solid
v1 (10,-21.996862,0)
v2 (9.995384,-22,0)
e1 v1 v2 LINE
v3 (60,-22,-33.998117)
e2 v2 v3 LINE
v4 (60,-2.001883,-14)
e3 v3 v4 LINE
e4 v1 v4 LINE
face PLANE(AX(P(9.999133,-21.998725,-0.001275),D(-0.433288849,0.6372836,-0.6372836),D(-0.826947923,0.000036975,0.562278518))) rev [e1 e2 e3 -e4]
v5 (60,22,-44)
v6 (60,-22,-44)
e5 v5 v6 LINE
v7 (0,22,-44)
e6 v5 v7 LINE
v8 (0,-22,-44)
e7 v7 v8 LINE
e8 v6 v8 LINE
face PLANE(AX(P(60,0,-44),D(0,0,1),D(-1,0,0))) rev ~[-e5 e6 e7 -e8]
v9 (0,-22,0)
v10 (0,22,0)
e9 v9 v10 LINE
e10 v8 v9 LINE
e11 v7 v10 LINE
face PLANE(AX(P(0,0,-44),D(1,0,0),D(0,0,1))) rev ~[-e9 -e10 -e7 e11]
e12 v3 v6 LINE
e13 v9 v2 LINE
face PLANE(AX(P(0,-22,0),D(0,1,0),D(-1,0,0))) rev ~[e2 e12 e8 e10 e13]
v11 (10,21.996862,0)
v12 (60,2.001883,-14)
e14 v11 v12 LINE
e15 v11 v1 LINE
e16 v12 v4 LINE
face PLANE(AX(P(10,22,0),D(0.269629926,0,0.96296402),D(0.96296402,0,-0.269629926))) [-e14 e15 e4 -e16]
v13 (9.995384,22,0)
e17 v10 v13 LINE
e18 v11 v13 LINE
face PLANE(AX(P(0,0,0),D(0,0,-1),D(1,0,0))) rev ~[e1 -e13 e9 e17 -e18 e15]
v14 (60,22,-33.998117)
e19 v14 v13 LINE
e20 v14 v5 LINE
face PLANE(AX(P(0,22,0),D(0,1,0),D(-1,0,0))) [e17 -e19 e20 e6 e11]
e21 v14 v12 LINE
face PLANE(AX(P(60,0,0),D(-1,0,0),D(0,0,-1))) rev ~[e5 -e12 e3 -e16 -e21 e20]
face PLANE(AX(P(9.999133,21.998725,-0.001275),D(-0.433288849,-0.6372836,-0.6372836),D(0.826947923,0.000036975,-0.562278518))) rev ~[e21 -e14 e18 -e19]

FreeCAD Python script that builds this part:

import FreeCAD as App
import Part
import Sketcher


def add_polygon(sketch, points):
    """Adds a closed chain of lines whose ends are joined by coincident constraints."""
    first, n = sketch.GeometryCount, len(points)
    for a, b in zip(points, points[1:] + points[:1]):
        sketch.addGeometry(Part.LineSegment(App.Vector(*a, 0), App.Vector(*b, 0)), False)
    for i in range(n):
        sketch.addConstraint(Sketcher.Constraint("Coincident", first + i, 2, first + (i + 1) % n, 1))

doc = App.newDocument("Part")
params = doc.addObject("Spreadsheet::Sheet", "Params")
for row, (alias, value) in enumerate([
    ("sketch1_width", "60 mm"),
    ("sketch1_height", "44 mm"),
    ("pad1_length", "44 mm"),
    ("sketch2_width", "50 mm"),
    ("sketch2_height", "14 mm"),
    ("pocket1_length", "60 mm"),
    ("pocket2_length", "40 mm"),
], start=1):
    params.set(f"A{row}", alias)
    params.set(f"B{row}", "=" + value)
    params.setAlias(f"B{row}", alias)

body = doc.addObject("PartDesign::Body", "Body")

# Sketch on XZ plane
sketch1 = body.newObject("Sketcher::SketchObject", "Sketch")
sketch1.AttachmentSupport = (doc.getObject("XZ_Plane"), [""])
sketch1.MapMode = "FlatFace"
add_polygon(sketch1, [(0, -44), (0, 0), (60, 0), (60, -44)])  # lines 0-3
sketch1.addConstraint([
    Sketcher.Constraint("Vertical", 0),
    Sketcher.Constraint("Horizontal", 1),
    Sketcher.Constraint("Vertical", 2),
    Sketcher.Constraint("Horizontal", 3),
    Sketcher.Constraint("Coincident", 0, 2, -1, 1),
    Sketcher.Constraint("DistanceX", 1, 1, 1, 2, 60.0),
    Sketcher.Constraint("DistanceY", 0, 1, 0, 2, 44.0),
])
sketch1.setExpression("Constraints[9]", "Params.sketch1_width")
sketch1.setExpression("Constraints[10]", "Params.sketch1_height")
pad1 = body.newObject("PartDesign::Pad", "Pad")
pad1.Profile = sketch1
pad1.setExpression("Length", "Params.pad1_length")
pad1.Midplane = True

# Sketch on XZ plane
sketch2 = body.newObject("Sketcher::SketchObject", "Sketch001")
sketch2.AttachmentSupport = (doc.getObject("XZ_Plane"), [""])
sketch2.MapMode = "FlatFace"
sketch2.AttachmentOffset = App.Placement(App.Vector(0, 0, -22), App.Rotation())
add_polygon(sketch2, [(60, -14), (10, 0), (60, 0)])  # lines 0-2
sketch2.addConstraint([
    Sketcher.Constraint("Horizontal", 1),
    Sketcher.Constraint("Vertical", 2),
    Sketcher.Constraint("PointOnObject", 0, 2, -1),
    Sketcher.Constraint("DistanceX", -1, 1, 0, 2, 10.0),
    Sketcher.Constraint("DistanceX", 1, 1, 1, 2, 50.0),
    Sketcher.Constraint("DistanceY", 2, 2, 2, 1, 14.0),
])
sketch2.setExpression("Constraints[7]", "Params.sketch2_width")
sketch2.setExpression("Constraints[8]", "Params.sketch2_height")
pocket1 = body.newObject("PartDesign::Pocket", "Pocket")
pocket1.Profile = sketch2
pocket1.setExpression("Length", "Params.pocket1_length")
pocket1.Reversed = True

# Sketch on an angled plane
sketch3 = body.newObject("Sketcher::SketchObject", "Sketch002")
sketch3.Placement = App.Placement(App.Vector(10, 22, 0), App.Rotation(App.Vector(0.826947923, 0.000036975, -0.562278518), App.Vector(0.358354442, -0.770629361, 0.526984329), App.Vector(-0.433288849, -0.6372836, -0.6372836), "ZXY"))
add_polygon(sketch3, [(-15, 29), (-15, -12), (94, -12), (94, 29)])  # lines 0-3
sketch3.addConstraint([
    Sketcher.Constraint("Vertical", 0),
    Sketcher.Constraint("Horizontal", 1),
    Sketcher.Constraint("Vertical", 2),
    Sketcher.Constraint("Horizontal", 3),
    Sketcher.Constraint("DistanceX", 1, 1, 1, 2, 108.8713),
    Sketcher.Constraint("DistanceY", 0, 2, 0, 1, 41.1384),
    Sketcher.Constraint("DistanceX", -1, 1, 1, 2, 93.717),
    Sketcher.Constraint("DistanceY", 0, 2, -1, 1, 12.3218),
])
pocket2 = body.newObject("PartDesign::Pocket", "Pocket001")
pocket2.Profile = sketch3
pocket2.setExpression("Length", "Params.pocket2_length")
doc.recompute()

mirrored = body.newObject("PartDesign::Mirrored", "Mirrored")
mirrored.Originals = [pocket2]
mirrored.MirrorPlane = (doc.getObject("XZ_Plane"), [""])
body.Tip = mirrored

doc.recompute()
